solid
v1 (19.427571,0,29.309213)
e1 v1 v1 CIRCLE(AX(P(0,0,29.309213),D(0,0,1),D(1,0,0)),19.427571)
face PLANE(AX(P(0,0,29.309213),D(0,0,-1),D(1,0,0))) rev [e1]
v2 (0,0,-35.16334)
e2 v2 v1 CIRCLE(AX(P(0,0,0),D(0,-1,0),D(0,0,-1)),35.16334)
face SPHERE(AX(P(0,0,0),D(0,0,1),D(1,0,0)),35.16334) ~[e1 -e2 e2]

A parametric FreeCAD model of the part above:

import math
import FreeCAD as App
import Part
import Sketcher
from FreeCAD import Vector
Q = App.Units.Quantity


def add_polygon(sketch, points):
    """Adds a closed chain of lines whose ends are joined by coincident constraints."""
    first, n = sketch.GeometryCount, len(points)
    for a, b in zip(points, points[1:] + points[:1]):
        sketch.addGeometry(Part.LineSegment(App.Vector(*a, 0), App.Vector(*b, 0)), False)
    for i in range(n):
        sketch.addConstraint(Sketcher.Constraint("Coincident", first + i, 2, first + (i + 1) % n, 1))

doc = App.newDocument("Part")
body = doc.addObject("PartDesign::Body", "Body")

# Sketch on XZ plane
sketch1 = body.newObject("Sketcher::SketchObject", "Sketch")
sketch1.AttachmentSupport = (doc.getObject("XZ_Plane"), [""])
sketch1.MapMode = "FlatFace"
sketch1.addGeometry([
    Part.LineSegment(Vector(0, 35, 0), Vector(0, -35, 0)),
    Part.ArcOfCircle(Part.Circle(Vector(0, 0, 0), Vector(0, 0, 1), 35), math.radians(-90), math.radians(90)),
], False)
sketch1.addConstraint([
    Sketcher.Constraint("Coincident", 0, 1, 1, 2),
    Sketcher.Constraint("Coincident", 1, 1, 0, 2),
    Sketcher.Constraint("Vertical", 0),
    Sketcher.Constraint("Coincident", 1, 3, -1, 1),
    Sketcher.Constraint("PointOnObject", 0, 1, -2),
    Sketcher.Constraint("Radius", 1, Q("35.16334 mm")),
])
revolution = body.newObject("PartDesign::Revolution", "Revolution")
revolution.Profile = sketch1
revolution.ReferenceAxis = (sketch1, ["V_Axis"])
revolution.Angle = 360

# Sketch on XZ plane
sketch2 = body.newObject("Sketcher::SketchObject", "Sketch001")
sketch2.AttachmentSupport = (doc.getObject("XZ_Plane"), [""])
sketch2.MapMode = "FlatFace"
add_polygon(sketch2, [(0, 41), (0, 29), (25, 29), (25, 41)])  # lines 0-3
sketch2.addConstraint([
    Sketcher.Constraint("Vertical", 0),
    Sketcher.Constraint("Horizontal", 1),
    Sketcher.Constraint("Vertical", 2),
    Sketcher.Constraint("Horizontal", 3),
    Sketcher.Constraint("PointOnObject", 0, 2, -2),
    Sketcher.Constraint("DistanceY", 0, 2, 0, 1, Q("11.842102 mm")),
    Sketcher.Constraint("DistanceX", 1, 1, 1, 2, Q("25.016448 mm")),
    Sketcher.Constraint("DistanceY", -1, 1, 0, 2, Q("29.309213 mm")),
])
groove = body.newObject("PartDesign::Groove", "Groove")
groove.Profile = sketch2
groove.ReferenceAxis = (sketch2, ["V_Axis"])
groove.Angle = 360

doc.recompute()
